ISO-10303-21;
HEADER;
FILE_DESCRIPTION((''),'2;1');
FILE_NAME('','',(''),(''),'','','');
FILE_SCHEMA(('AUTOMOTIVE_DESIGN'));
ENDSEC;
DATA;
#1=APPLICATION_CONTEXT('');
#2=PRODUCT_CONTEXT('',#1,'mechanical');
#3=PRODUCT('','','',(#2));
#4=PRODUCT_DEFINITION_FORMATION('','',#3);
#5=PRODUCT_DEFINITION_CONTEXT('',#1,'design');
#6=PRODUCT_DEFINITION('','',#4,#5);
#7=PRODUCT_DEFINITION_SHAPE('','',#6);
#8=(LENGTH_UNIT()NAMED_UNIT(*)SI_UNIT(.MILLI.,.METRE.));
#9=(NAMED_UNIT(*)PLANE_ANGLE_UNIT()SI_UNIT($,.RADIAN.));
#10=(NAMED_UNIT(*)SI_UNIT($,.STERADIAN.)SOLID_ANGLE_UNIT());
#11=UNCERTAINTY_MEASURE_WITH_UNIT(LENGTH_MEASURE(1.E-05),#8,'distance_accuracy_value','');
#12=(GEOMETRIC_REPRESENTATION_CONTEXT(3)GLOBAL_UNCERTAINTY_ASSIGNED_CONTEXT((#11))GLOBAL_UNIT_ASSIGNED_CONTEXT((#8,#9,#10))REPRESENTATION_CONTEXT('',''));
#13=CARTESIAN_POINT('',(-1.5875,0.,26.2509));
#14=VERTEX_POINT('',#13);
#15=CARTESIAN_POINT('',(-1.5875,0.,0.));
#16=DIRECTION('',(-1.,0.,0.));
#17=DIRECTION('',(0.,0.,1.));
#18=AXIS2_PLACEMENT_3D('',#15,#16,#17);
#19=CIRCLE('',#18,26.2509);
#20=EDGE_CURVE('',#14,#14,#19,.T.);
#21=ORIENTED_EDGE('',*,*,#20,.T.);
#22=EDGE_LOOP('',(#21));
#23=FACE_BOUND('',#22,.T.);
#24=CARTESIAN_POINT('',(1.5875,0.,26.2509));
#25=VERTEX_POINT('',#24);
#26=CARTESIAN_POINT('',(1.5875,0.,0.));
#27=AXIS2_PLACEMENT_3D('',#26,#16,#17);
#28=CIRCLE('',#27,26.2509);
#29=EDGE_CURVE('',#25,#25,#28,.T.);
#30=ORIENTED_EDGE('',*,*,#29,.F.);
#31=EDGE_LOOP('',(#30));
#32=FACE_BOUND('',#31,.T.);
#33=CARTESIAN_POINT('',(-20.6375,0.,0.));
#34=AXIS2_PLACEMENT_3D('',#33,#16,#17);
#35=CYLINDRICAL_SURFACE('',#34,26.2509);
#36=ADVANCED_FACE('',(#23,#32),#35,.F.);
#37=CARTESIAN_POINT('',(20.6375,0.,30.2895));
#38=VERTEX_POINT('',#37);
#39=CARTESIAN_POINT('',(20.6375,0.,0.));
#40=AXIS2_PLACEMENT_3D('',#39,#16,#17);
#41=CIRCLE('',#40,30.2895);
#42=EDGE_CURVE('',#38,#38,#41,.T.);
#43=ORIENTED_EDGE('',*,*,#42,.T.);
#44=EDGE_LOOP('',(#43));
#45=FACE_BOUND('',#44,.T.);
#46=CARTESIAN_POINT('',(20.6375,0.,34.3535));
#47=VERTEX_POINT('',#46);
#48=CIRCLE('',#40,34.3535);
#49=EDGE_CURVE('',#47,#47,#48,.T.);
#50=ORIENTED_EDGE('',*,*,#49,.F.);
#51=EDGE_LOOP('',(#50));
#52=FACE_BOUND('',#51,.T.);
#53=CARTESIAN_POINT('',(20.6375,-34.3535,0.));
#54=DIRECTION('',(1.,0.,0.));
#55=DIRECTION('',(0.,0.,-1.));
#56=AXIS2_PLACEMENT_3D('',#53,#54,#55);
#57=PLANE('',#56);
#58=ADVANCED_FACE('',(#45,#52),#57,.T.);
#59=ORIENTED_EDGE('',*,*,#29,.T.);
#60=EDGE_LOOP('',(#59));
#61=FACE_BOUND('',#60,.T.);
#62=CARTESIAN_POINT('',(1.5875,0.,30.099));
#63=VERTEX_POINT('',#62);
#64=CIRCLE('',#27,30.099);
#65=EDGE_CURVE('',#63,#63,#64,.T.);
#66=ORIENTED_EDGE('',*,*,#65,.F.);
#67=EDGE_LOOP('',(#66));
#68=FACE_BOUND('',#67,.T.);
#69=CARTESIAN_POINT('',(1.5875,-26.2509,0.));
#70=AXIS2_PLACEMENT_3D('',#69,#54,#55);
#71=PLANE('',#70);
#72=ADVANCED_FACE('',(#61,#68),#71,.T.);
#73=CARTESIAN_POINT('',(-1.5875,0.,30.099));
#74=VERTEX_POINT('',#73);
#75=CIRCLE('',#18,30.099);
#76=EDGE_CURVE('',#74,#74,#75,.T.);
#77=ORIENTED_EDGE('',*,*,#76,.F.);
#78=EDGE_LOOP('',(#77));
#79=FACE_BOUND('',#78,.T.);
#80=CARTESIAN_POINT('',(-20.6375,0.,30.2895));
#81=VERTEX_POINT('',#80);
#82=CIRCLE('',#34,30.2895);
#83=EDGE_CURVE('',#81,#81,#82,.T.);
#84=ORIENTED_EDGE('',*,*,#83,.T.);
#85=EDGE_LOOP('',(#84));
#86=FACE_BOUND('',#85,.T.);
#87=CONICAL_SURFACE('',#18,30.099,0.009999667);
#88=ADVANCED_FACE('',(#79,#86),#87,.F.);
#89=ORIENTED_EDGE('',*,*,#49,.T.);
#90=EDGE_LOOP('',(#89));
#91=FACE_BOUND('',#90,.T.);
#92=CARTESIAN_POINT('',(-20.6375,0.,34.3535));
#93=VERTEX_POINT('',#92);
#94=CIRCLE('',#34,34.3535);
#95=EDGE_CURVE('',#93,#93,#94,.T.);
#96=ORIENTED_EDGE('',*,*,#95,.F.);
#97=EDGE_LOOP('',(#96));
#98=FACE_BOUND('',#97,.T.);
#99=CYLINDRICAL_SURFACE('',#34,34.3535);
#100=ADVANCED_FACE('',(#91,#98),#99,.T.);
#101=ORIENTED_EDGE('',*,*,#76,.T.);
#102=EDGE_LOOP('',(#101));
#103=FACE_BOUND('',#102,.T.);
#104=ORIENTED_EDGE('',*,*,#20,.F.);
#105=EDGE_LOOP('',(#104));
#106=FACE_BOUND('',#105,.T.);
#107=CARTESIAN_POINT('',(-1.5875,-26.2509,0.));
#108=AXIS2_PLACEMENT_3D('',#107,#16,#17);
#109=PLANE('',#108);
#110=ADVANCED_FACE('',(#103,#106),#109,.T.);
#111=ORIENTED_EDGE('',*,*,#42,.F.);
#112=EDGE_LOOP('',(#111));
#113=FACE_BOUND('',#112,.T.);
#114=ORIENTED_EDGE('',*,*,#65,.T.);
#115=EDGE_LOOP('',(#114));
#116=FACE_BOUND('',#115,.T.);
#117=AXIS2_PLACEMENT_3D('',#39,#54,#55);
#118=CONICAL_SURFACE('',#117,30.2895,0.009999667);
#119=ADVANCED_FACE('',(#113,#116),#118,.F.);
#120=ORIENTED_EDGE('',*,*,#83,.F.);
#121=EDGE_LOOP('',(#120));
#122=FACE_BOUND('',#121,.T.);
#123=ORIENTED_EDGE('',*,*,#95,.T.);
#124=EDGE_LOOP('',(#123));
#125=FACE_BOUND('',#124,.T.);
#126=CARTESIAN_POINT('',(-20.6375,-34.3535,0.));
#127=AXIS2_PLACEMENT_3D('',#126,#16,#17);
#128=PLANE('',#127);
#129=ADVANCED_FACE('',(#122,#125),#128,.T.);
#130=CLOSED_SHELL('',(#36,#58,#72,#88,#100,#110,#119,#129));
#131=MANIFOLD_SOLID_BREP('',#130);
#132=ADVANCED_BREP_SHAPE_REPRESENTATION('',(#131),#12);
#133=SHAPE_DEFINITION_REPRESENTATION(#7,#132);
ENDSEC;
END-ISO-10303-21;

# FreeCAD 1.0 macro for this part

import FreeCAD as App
import Part
import Sketcher

V = App.Vector
Q = App.Units.Quantity

doc = App.newDocument("Part")
body = doc.addObject("PartDesign::Body", "Body")

# Sketch on XY plane
sketch1 = doc.addObject("Sketcher::SketchObject", "Sketch")
body.addObject(sketch1)
sketch1.AttachmentSupport = (doc.XY_Plane, [""])
sketch1.MapMode = "FlatFace"
sketch1.addGeometry([
    Part.LineSegment(V(-20.6, -34.4, 0), V(20.6, -34.4, 0)),  # 0
    Part.LineSegment(V(20.6, -34.4, 0), V(20.6, -30.3, 0)),  # 1
    Part.LineSegment(V(20.6, -30.3, 0), V(1.6, -30.1, 0)),  # 2
    Part.LineSegment(V(1.6, -30.1, 0), V(1.6, -26.3, 0)),  # 3
    Part.LineSegment(V(1.6, -26.3, 0), V(-1.6, -26.3, 0)),  # 4
    Part.LineSegment(V(-1.6, -26.3, 0), V(-1.6, -30.1, 0)),  # 5
    Part.LineSegment(V(-1.6, -30.1, 0), V(-20.6, -30.3, 0)),  # 6
    Part.LineSegment(V(-20.6, -30.3, 0), V(-20.6, -34.4, 0)),  # 7
], False)
sketch1.addConstraint([
    Sketcher.Constraint("Coincident", 0, 2, 1, 1),
    Sketcher.Constraint("Coincident", 1, 2, 2, 1),
    Sketcher.Constraint("Coincident", 2, 2, 3, 1),
    Sketcher.Constraint("Coincident", 3, 2, 4, 1),
    Sketcher.Constraint("Coincident", 4, 2, 5, 1),
    Sketcher.Constraint("Coincident", 5, 2, 6, 1),
    Sketcher.Constraint("Coincident", 6, 2, 7, 1),
    Sketcher.Constraint("Coincident", 7, 2, 0, 1),
    Sketcher.Constraint("Horizontal", 0),
    Sketcher.Constraint("Vertical", 1),
    Sketcher.Constraint("Vertical", 3),
    Sketcher.Constraint("Horizontal", 4),
    Sketcher.Constraint("Vertical", 5),
    Sketcher.Constraint("Vertical", 7),
    Sketcher.Constraint("Symmetric", 2, 2, 5, 2, -2),
    Sketcher.Constraint("Symmetric", 1, 2, 6, 2, -2),
    Sketcher.Constraint("DistanceY", 1, 1, 1, 2, Q("0.16 in")),
    Sketcher.Constraint("DistanceX", 0, 1, 0, 2, Q("1.625 in")),
    Sketcher.Constraint("DistanceX", 4, 2, 4, 1, Q("0.125 in")),
    Sketcher.Constraint("DistanceY", 3, 1, 3, 2, Q("0.1515 in")),
    Sketcher.Constraint("DistanceY", 2, 2, -1, 1, Q("1.185 in")),
    Sketcher.Constraint("DistanceY", 1, 2, 3, 2, Q("0.159 in")),
])
revolution = doc.addObject("PartDesign::Revolution", "Revolution")
body.addObject(revolution)
revolution.Profile = sketch1
revolution.ReferenceAxis = (sketch1, ["H_Axis"])
revolution.Angle = 360

doc.recompute()
